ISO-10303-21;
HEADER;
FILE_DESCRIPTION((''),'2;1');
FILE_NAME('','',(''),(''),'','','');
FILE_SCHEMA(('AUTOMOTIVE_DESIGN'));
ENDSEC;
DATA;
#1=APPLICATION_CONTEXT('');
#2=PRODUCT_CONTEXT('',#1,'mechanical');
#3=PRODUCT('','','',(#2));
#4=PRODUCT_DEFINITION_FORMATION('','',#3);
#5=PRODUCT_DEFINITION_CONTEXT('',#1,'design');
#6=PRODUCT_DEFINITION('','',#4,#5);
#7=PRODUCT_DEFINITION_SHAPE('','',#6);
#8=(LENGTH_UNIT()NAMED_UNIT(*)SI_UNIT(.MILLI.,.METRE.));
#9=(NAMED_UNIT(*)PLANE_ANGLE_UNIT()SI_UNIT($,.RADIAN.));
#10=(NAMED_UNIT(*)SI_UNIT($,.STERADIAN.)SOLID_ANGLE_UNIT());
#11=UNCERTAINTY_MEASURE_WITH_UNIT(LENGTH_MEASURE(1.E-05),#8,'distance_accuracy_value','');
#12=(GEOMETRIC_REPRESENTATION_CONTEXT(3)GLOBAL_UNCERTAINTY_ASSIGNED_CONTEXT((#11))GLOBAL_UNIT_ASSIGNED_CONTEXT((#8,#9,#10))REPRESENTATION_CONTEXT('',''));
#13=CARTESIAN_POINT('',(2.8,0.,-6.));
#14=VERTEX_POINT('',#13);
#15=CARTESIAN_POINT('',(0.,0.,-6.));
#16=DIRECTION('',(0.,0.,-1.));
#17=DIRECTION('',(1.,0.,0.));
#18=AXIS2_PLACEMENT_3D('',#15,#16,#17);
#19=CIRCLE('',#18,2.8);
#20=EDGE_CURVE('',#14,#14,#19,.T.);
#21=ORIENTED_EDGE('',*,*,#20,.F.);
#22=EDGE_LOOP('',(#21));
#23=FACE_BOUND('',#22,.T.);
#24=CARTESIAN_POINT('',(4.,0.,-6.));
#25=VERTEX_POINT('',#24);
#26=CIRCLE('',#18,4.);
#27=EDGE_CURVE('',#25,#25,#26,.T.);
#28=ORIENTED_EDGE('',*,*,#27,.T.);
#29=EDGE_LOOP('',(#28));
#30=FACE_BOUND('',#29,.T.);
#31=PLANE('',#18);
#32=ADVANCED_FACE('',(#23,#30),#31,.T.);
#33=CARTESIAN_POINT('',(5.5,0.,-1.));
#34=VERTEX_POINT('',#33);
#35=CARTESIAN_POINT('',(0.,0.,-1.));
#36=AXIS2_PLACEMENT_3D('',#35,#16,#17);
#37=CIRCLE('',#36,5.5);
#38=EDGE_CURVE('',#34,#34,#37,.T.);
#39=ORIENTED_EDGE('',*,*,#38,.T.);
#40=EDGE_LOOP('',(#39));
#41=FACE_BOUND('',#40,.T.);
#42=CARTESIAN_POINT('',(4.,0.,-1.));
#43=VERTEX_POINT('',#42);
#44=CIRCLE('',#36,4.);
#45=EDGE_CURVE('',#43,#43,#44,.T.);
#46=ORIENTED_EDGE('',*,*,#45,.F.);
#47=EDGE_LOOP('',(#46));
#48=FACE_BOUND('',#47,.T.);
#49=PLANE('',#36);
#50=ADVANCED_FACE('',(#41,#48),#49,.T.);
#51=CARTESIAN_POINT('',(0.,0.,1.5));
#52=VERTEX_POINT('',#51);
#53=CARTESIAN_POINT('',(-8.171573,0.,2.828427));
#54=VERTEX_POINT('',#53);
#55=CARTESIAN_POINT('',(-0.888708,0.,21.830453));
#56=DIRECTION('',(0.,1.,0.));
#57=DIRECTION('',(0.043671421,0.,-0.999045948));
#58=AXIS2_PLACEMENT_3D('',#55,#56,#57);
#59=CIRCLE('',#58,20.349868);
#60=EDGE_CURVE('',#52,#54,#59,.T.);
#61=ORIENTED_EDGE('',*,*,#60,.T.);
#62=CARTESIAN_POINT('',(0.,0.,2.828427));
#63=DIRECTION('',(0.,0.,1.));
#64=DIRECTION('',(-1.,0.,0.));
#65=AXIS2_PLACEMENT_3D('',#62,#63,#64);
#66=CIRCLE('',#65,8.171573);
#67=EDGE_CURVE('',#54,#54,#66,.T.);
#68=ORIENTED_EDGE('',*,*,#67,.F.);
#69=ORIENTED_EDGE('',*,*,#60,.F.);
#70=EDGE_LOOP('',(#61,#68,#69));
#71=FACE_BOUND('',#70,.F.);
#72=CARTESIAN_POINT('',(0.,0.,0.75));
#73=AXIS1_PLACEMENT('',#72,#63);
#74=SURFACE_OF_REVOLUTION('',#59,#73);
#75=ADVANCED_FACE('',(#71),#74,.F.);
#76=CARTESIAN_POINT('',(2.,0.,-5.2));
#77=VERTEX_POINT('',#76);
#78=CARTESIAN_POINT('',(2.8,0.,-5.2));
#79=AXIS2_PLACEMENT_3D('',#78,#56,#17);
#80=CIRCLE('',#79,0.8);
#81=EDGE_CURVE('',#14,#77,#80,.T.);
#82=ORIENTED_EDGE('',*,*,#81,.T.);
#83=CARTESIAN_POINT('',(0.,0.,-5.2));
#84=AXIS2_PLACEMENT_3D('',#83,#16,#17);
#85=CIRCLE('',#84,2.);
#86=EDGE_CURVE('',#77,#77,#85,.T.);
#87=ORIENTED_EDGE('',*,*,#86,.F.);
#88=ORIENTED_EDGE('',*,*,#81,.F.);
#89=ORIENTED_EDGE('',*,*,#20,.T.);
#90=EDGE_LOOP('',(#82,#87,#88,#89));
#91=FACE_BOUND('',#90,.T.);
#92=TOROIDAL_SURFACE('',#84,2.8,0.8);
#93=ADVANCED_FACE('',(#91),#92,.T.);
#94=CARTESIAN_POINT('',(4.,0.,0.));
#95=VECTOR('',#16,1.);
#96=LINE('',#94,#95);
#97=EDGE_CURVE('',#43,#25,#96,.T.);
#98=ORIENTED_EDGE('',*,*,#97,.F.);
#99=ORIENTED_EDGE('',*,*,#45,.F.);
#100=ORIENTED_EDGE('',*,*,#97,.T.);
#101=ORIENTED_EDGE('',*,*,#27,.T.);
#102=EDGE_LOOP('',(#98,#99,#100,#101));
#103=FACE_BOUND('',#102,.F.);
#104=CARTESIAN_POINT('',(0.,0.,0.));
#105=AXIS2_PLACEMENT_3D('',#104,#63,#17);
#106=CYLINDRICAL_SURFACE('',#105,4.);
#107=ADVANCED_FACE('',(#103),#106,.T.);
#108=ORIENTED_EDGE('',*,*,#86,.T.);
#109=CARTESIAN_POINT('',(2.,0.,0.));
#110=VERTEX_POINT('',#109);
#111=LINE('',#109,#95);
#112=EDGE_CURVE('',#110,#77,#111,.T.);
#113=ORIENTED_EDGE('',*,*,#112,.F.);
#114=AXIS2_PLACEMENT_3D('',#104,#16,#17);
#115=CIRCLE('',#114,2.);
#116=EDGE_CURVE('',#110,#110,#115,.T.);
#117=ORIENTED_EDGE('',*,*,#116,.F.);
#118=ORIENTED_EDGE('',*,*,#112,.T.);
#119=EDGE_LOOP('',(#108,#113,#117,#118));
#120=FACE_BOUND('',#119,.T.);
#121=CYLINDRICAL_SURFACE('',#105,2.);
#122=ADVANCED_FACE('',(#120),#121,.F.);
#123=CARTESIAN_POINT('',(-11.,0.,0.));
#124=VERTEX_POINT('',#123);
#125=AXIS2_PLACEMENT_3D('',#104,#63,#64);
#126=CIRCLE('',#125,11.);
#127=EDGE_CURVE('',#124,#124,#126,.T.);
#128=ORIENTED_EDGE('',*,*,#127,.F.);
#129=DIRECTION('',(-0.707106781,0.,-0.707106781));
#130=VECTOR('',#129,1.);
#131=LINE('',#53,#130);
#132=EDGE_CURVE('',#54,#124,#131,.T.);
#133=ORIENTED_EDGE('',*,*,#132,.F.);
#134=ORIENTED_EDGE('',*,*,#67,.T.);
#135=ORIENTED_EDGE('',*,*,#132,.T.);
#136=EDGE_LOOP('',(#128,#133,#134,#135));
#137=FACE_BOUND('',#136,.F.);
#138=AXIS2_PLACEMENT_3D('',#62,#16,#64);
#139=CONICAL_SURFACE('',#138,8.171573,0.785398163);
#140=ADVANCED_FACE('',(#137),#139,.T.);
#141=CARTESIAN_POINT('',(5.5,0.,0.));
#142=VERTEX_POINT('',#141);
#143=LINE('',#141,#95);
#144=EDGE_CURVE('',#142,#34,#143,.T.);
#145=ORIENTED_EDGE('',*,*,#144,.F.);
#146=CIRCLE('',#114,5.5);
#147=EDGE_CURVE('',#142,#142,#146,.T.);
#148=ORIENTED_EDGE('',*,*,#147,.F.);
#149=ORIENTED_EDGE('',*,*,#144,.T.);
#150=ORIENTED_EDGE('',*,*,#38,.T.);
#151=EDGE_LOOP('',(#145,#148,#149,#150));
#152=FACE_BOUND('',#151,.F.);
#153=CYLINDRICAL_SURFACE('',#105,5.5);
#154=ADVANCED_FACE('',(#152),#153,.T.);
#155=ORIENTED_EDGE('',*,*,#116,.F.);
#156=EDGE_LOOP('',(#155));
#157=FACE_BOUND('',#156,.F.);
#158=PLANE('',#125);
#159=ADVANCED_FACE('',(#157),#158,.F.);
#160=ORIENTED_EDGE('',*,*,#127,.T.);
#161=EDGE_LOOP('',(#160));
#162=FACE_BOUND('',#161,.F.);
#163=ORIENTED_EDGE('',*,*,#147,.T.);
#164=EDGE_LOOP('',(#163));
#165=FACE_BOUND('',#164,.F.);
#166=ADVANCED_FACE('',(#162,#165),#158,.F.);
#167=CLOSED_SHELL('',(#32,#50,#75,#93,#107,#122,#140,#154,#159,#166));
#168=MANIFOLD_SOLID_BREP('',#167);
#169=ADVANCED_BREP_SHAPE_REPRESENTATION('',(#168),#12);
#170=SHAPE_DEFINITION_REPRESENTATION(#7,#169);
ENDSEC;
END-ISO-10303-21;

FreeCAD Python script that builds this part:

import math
import FreeCAD as App
import Part
import Sketcher

V = App.Vector
Q = App.Units.Quantity


def edges_at(feature, points):
    """Names of the edges that pass closest to the given points."""
    edges = feature.Shape.Edges
    near = lambda p: min(range(len(edges)), key=lambda i: edges[i].distToShape(Part.Vertex(*p))[0])
    return sorted({f"Edge{near(p) + 1}" for p in points})

doc = App.newDocument("Part")
body = doc.addObject("PartDesign::Body", "Body")

sketch1 = body.newObject("Sketcher::SketchObject", "Sketch")
sketch1.AttachmentSupport = (doc.getObject("XZ_Plane"), [""])
sketch1.MapMode = "FlatFace"
sketch1.addGeometry(Part.LineSegment(V(-11, 0, 0), V(0, 0, 0)), False)
sketch1.addGeometry(Part.LineSegment(V(0, 0, 0), V(0, 1.5, 0)), False)
sketch1.addGeometry(Part.ArcOfCircle(Part.Circle(V(-0.888708, 21.830453, 0), V(0, 0, 1), 20.349868), math.radians(-110.970222), math.radians(-87.497016)), False)
sketch1.addGeometry(Part.LineSegment(V(-8.171573, 2.828427, 0), V(-11, 0, 0)), False)
sketch1.addConstraint(Sketcher.Constraint("Coincident", 0, 2, 1, 1))
sketch1.addConstraint(Sketcher.Constraint("Coincident", 1, 2, 2, 2))
sketch1.addConstraint(Sketcher.Constraint("Coincident", 2, 1, 3, 1))
sketch1.addConstraint(Sketcher.Constraint("Coincident", 3, 2, 0, 1))
sketch1.addConstraint(Sketcher.Constraint("Horizontal", 0))
sketch1.addConstraint(Sketcher.Constraint("Vertical", 1))
sketch1.addConstraint(Sketcher.Constraint("Coincident", 0, 2, -1, 1))
sketch1.addConstraint(Sketcher.Constraint("DistanceX", 0, 1, 0, 2, 11.0))
sketch1.addConstraint(Sketcher.Constraint("Angle", 3, Q("-135 deg")))
sketch1.addConstraint(Sketcher.Constraint("Distance", 3, 4.0))
sketch1.addConstraint(Sketcher.Constraint("DistanceY", 1, 1, 1, 2, 1.5))
sketch1.addConstraint(Sketcher.Constraint("Radius", 2, 20.349868))
revolution = body.newObject("PartDesign::Revolution", "Revolution")
revolution.Profile = sketch1
revolution.ReferenceAxis = (sketch1, ["V_Axis"])
revolution.Angle = 360

sketch2 = body.newObject("Sketcher::SketchObject", "Sketch001")
sketch2.AttachmentSupport = (doc.getObject("XY_Plane"), [""])
sketch2.MapMode = "FlatFace"
sketch2.addGeometry(Part.Circle(V(0, 0, 0), V(0, 0, 1), 5.5), False)
sketch2.addGeometry(Part.Circle(V(0, 0, 0), V(0, 0, 1), 4), False)
sketch2.addConstraint(Sketcher.Constraint("Coincident", 0, 3, -1, 1))
sketch2.addConstraint(Sketcher.Constraint("Coincident", 1, 3, -1, 1))
sketch2.addConstraint(Sketcher.Constraint("Diameter", 0, 11.0))
sketch2.addConstraint(Sketcher.Constraint("Diameter", 1, 8.0))
pad1 = body.newObject("PartDesign::Pad", "Pad")
pad1.Profile = sketch2
pad1.Length = 1
pad1.Reversed = True

sketch3 = body.newObject("Sketcher::SketchObject", "Sketch002")
sketch3.AttachmentSupport = (doc.getObject("XY_Plane"), [""])
sketch3.MapMode = "FlatFace"
sketch3.addGeometry(Part.Circle(V(0, 0, 0), V(0, 0, 1), 4), False)
sketch3.addGeometry(Part.Circle(V(0, 0, 0), V(0, 0, 1), 2), False)
sketch3.addConstraint(Sketcher.Constraint("Coincident", 0, 3, -1, 1))
sketch3.addConstraint(Sketcher.Constraint("Coincident", 1, 3, -1, 1))
sketch3.addConstraint(Sketcher.Constraint("Diameter", 0, 8.0))
sketch3.addConstraint(Sketcher.Constraint("Diameter", 1, 4.0))
pad2 = body.newObject("PartDesign::Pad", "Pad001")
pad2.Profile = sketch3
pad2.Length = 6
pad2.Reversed = True
doc.recompute()

fillet = body.newObject("PartDesign::Fillet", "Fillet")
fillet.Base = (pad2, edges_at(pad2, [(-2, 0, -6)]))
fillet.Radius = 0.8

doc.recompute()
